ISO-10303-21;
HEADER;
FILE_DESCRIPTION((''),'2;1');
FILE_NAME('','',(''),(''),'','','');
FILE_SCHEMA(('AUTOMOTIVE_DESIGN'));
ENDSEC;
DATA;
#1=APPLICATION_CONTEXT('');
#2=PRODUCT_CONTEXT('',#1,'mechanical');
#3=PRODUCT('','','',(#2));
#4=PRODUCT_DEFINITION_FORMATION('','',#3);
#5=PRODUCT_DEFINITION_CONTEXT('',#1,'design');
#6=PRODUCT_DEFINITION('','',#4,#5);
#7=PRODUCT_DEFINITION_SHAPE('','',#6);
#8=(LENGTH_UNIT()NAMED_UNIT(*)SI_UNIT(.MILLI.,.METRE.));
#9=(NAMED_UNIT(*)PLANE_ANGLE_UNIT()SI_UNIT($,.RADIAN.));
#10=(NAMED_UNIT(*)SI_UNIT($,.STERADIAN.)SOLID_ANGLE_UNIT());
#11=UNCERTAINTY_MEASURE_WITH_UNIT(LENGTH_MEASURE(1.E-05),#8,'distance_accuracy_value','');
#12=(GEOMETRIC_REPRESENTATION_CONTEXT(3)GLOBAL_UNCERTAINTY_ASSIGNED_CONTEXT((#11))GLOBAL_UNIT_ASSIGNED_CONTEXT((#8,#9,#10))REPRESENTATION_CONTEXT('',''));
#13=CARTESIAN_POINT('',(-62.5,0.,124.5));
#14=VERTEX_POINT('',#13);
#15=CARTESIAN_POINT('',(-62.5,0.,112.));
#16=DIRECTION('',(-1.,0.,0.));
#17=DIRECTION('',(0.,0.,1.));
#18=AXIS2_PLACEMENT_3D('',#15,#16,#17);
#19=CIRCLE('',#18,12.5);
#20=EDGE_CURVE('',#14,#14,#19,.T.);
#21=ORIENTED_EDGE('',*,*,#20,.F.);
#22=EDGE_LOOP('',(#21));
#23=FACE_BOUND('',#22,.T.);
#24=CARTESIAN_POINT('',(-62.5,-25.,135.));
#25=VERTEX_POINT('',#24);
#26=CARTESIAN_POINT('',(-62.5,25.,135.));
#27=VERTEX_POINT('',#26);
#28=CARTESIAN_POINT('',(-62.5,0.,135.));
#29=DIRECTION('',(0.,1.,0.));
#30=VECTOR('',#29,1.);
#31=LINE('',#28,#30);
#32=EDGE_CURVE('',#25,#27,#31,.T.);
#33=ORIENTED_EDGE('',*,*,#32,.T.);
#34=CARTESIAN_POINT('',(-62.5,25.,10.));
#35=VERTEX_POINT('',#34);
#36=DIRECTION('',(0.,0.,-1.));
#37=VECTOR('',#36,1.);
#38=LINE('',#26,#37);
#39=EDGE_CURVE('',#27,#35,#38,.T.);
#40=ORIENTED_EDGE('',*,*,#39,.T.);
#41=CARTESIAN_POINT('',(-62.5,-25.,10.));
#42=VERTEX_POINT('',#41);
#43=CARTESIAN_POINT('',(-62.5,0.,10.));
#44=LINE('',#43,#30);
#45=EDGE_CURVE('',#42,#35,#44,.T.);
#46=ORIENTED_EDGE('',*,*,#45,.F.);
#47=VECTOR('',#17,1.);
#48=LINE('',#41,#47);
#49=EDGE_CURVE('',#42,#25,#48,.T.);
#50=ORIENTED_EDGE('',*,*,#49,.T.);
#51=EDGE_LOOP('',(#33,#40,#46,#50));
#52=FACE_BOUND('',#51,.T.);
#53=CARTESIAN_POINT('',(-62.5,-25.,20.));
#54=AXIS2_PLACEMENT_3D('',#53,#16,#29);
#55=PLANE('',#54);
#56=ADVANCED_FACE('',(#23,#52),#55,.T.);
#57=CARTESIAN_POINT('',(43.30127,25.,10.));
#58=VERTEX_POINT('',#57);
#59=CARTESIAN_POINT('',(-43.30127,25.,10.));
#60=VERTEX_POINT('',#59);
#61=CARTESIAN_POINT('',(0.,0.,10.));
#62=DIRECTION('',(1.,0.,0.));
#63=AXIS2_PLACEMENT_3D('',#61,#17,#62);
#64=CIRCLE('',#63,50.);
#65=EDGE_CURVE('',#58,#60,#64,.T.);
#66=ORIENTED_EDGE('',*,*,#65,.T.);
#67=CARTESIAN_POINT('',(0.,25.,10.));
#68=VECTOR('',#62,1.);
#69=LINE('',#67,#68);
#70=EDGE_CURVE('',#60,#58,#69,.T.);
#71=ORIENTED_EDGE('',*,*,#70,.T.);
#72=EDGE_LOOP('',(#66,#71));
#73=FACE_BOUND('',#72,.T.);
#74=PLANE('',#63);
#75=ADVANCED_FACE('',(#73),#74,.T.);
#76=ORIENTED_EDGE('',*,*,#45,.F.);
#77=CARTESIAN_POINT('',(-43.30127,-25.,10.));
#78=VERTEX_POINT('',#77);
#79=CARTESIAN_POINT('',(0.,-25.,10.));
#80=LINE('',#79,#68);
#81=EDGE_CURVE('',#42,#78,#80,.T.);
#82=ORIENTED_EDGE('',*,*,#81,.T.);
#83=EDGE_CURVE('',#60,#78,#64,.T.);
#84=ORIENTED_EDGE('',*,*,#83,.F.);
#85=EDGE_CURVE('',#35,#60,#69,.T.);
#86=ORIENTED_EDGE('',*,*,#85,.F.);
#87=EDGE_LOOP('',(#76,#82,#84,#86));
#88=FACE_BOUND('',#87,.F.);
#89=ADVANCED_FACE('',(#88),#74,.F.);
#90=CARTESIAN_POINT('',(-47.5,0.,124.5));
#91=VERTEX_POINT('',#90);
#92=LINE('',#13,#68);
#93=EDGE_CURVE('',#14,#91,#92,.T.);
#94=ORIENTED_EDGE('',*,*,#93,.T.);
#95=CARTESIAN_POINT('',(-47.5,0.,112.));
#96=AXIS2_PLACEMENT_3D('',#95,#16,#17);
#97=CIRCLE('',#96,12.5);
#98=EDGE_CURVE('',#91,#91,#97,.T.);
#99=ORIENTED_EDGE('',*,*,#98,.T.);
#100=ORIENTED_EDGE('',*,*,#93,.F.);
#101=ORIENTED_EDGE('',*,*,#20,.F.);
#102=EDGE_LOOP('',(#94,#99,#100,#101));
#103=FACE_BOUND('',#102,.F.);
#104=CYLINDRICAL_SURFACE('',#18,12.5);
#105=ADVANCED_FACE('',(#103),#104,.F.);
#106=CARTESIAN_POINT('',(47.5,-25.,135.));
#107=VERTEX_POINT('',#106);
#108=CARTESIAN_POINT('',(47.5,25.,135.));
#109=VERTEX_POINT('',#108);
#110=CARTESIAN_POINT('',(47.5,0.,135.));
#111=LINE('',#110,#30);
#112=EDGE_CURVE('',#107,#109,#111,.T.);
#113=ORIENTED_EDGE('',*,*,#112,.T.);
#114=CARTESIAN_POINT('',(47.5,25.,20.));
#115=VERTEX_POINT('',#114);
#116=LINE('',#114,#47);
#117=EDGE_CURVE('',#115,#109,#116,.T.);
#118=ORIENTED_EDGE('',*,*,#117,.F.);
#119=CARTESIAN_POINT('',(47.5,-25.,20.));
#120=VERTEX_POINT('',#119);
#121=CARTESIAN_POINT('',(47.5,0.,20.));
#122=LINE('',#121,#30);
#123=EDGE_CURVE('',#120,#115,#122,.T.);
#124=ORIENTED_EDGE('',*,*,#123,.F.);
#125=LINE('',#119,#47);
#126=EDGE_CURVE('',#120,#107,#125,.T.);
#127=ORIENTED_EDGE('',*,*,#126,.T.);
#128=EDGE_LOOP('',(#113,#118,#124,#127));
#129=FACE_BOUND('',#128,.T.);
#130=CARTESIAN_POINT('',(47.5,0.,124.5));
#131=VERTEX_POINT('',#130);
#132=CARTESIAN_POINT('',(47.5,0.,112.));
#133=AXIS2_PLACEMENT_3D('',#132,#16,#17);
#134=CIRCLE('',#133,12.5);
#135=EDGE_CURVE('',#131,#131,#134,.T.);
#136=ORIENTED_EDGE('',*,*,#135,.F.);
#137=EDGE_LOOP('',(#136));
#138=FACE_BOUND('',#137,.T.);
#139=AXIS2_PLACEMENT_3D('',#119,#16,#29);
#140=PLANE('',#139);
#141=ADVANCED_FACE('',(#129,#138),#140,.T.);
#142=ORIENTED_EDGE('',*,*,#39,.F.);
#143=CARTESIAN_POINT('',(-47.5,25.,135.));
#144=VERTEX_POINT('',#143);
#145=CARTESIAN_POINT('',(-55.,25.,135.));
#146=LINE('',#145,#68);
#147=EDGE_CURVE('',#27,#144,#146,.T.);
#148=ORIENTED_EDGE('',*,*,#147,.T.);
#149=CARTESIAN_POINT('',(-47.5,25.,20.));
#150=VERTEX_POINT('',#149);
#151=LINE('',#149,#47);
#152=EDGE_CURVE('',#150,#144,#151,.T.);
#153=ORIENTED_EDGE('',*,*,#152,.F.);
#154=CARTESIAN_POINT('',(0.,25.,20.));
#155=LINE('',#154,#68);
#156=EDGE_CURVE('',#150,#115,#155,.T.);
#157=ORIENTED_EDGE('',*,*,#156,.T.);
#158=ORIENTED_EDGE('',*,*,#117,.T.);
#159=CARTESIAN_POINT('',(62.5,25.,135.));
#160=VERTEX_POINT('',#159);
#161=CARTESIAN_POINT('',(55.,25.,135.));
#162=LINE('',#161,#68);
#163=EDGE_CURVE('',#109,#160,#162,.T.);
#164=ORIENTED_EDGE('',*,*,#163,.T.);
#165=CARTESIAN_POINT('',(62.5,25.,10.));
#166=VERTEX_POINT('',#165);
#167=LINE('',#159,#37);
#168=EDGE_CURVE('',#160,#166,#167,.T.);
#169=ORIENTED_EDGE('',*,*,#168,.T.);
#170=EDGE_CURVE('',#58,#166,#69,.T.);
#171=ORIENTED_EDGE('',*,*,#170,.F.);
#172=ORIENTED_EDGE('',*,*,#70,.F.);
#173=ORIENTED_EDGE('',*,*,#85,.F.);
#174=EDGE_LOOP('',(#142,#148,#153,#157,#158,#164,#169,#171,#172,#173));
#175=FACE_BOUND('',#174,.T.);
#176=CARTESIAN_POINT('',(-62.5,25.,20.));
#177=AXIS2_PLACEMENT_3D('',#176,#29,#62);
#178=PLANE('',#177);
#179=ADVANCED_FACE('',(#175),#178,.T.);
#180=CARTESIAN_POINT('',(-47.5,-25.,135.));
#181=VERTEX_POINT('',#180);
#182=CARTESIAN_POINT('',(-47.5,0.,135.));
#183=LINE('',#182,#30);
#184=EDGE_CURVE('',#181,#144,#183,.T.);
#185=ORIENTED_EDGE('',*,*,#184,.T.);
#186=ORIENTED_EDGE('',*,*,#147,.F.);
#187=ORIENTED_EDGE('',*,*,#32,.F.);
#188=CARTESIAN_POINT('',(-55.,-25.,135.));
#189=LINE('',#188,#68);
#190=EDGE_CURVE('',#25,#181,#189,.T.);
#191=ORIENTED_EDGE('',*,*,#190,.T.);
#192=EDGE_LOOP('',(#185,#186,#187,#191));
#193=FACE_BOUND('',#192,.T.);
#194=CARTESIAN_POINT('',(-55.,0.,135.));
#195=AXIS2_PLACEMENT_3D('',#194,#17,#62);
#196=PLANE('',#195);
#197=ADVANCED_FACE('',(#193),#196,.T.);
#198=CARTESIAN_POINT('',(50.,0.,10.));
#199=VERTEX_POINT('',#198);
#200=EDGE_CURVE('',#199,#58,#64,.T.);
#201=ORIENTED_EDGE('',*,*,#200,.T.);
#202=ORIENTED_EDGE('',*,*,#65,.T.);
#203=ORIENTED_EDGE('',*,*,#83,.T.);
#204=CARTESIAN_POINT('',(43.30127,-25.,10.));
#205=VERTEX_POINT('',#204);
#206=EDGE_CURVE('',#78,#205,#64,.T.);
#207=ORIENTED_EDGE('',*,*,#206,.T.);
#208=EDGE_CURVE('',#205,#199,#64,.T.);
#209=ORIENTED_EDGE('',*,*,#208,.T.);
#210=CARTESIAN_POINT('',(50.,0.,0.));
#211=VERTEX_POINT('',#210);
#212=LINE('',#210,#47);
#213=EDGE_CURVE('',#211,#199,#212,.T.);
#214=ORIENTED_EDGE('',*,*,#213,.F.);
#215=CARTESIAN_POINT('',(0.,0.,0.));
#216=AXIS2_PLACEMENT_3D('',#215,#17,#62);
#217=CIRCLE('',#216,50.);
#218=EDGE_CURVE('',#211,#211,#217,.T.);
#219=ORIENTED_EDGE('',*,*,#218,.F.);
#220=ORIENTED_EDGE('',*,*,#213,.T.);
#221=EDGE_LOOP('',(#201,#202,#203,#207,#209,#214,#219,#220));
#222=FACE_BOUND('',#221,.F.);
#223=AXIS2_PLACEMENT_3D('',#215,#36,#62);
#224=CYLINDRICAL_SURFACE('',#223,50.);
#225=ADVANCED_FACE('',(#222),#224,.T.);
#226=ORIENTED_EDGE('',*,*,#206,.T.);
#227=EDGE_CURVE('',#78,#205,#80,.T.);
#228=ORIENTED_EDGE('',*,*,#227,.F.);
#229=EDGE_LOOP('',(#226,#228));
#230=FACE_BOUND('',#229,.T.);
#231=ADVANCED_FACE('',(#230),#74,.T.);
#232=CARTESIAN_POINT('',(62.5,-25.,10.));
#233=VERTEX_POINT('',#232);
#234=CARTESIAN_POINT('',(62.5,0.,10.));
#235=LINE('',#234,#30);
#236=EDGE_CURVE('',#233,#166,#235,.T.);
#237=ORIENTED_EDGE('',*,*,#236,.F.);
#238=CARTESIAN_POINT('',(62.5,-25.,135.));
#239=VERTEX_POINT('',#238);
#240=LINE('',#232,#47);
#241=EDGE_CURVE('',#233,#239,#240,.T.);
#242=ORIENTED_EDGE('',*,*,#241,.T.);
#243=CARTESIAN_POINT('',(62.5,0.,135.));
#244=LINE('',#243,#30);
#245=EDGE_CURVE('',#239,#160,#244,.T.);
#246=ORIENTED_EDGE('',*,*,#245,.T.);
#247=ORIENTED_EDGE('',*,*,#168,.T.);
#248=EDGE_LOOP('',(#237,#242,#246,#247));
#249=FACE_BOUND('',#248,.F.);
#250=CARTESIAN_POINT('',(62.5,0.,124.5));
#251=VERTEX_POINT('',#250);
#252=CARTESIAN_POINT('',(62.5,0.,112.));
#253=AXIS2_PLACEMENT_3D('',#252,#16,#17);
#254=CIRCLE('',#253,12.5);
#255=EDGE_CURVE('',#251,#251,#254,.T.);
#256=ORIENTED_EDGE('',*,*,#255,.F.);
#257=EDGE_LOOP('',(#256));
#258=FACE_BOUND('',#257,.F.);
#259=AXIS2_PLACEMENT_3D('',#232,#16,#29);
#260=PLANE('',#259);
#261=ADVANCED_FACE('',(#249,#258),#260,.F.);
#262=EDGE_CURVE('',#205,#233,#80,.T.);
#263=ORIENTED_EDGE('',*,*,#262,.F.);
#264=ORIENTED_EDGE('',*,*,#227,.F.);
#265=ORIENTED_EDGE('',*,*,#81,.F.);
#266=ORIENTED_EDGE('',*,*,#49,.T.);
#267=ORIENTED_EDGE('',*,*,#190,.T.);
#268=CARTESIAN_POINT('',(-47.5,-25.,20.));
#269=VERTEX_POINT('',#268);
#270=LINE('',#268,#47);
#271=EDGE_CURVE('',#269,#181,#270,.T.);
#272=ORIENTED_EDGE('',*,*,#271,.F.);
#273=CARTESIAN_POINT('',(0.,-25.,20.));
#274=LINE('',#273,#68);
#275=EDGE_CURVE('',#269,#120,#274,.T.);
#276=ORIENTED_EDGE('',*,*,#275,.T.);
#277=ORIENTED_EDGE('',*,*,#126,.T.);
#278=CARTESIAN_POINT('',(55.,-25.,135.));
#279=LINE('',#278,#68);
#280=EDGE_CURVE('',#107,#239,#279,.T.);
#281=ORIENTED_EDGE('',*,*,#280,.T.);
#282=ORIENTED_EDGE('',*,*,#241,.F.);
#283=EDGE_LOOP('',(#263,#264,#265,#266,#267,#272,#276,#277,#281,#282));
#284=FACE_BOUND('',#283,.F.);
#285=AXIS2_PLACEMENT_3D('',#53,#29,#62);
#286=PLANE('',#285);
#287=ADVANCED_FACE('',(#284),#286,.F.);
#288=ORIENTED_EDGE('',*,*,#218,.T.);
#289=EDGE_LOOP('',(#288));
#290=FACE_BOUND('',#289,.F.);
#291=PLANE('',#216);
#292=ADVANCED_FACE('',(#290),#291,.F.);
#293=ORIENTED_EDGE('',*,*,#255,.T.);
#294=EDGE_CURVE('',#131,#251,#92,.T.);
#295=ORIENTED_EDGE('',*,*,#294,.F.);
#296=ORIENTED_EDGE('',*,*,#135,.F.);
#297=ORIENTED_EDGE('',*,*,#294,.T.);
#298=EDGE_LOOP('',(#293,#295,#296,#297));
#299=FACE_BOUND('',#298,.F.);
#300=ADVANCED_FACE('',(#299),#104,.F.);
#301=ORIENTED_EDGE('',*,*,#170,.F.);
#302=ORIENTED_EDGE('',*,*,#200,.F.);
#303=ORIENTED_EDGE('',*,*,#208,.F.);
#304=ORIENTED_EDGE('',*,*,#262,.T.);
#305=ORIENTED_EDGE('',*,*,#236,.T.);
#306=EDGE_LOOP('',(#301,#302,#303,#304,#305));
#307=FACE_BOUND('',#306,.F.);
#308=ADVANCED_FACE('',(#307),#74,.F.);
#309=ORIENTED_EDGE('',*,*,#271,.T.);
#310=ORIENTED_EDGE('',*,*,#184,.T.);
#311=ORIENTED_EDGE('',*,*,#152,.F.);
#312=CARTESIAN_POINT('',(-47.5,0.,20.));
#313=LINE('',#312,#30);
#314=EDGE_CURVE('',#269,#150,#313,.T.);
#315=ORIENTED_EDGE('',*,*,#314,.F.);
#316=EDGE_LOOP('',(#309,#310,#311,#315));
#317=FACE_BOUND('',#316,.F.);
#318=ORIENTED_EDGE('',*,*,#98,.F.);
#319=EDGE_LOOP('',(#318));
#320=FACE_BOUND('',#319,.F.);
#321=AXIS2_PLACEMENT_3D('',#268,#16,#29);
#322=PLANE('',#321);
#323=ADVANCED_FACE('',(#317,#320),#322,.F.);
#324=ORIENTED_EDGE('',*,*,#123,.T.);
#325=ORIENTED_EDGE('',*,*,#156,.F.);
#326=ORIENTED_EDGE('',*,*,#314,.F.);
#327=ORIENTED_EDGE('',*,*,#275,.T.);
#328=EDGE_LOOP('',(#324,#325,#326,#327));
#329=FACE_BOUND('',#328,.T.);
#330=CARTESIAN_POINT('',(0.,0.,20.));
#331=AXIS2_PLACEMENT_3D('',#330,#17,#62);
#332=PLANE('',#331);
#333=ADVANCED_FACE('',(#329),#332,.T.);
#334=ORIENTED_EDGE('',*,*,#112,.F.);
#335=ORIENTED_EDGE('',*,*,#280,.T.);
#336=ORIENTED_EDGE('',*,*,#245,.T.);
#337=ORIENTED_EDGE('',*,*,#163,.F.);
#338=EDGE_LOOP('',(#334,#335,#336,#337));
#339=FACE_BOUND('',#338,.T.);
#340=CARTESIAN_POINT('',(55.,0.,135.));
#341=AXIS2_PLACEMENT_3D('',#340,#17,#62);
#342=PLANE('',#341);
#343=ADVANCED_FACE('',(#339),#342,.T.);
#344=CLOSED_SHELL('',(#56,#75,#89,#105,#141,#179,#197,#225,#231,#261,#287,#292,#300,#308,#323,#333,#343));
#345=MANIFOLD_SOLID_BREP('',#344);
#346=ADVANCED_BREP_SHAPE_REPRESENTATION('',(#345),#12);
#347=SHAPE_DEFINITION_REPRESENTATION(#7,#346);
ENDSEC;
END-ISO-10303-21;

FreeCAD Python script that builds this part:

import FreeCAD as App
import Part
import Sketcher

V = App.Vector
Q = App.Units.Quantity

doc = App.newDocument("Part")
body = doc.addObject("PartDesign::Body", "Body")

# Sketch on XY plane
sketch1 = doc.addObject("Sketcher::SketchObject", "Sketch")
body.addObject(sketch1)
sketch1.AttachmentSupport = (doc.XY_Plane, [""])
sketch1.MapMode = "FlatFace"
sketch1.addGeometry(Part.Circle(V(0, 0, 0), V(0, 0, 1), 50), False)
sketch1.addConstraint([
    Sketcher.Constraint("Coincident", 0, 3, -1, 1),
    Sketcher.Constraint("Diameter", 0, Q("100 mm")),
])
pad1 = doc.addObject("PartDesign::Pad", "Pad")
body.addObject(pad1)
pad1.Profile = sketch1
pad1.Length = 10

# Sketch on XY plane
sketch2 = doc.addObject("Sketcher::SketchObject", "Sketch001")
body.addObject(sketch2)
sketch2.AttachmentSupport = (doc.XY_Plane, [""])
sketch2.MapMode = "FlatFace"
sketch2.AttachmentOffset = App.Placement(V(0, 0, 10), App.Rotation())
sketch2.addGeometry([
    Part.LineSegment(V(-62, 25, 0), V(-62, -25, 0)),
    Part.LineSegment(V(-62, -25, 0), V(62, -25, 0)),
    Part.LineSegment(V(62, -25, 0), V(62, 25, 0)),
    Part.LineSegment(V(62, 25, 0), V(-62, 25, 0)),
], False)
sketch2.addConstraint([
    Sketcher.Constraint("Coincident", 0, 2, 1, 1),
    Sketcher.Constraint("Coincident", 1, 2, 2, 1),
    Sketcher.Constraint("Coincident", 2, 2, 3, 1),
    Sketcher.Constraint("Coincident", 3, 2, 0, 1),
    Sketcher.Constraint("Vertical", 0),
    Sketcher.Constraint("Horizontal", 1),
    Sketcher.Constraint("Vertical", 2),
    Sketcher.Constraint("Horizontal", 3),
    Sketcher.Constraint("Symmetric", 0, 2, 2, 2, -1, 1),
    Sketcher.Constraint("DistanceX", 1, 1, 1, 2, Q("125 mm")),
    Sketcher.Constraint("DistanceY", 0, 2, 0, 1, Q("50 mm")),
])
pad2 = doc.addObject("PartDesign::Pad", "Pad001")
body.addObject(pad2)
pad2.Profile = sketch2
pad2.Length = 10

# Sketch on XY plane
sketch3 = doc.addObject("Sketcher::SketchObject", "Sketch002")
body.addObject(sketch3)
sketch3.AttachmentSupport = (doc.XY_Plane, [""])
sketch3.MapMode = "FlatFace"
sketch3.AttachmentOffset = App.Placement(V(0, 0, 20), App.Rotation())
sketch3.addGeometry([
    Part.LineSegment(V(-62, 25, 0), V(-62, -25, 0)),  # 0
    Part.LineSegment(V(-62, -25, 0), V(-48, -25, 0)),  # 1
    Part.LineSegment(V(-48, -25, 0), V(-48, 25, 0)),  # 2
    Part.LineSegment(V(-48, 25, 0), V(-62, 25, 0)),  # 3
    Part.LineSegment(V(48, 25, 0), V(48, -25, 0)),  # 4
    Part.LineSegment(V(48, -25, 0), V(62, -25, 0)),  # 5
    Part.LineSegment(V(62, -25, 0), V(62, 25, 0)),  # 6
    Part.LineSegment(V(62, 25, 0), V(48, 25, 0)),  # 7
], False)
sketch3.addConstraint([
    Sketcher.Constraint("Coincident", 0, 2, 1, 1),
    Sketcher.Constraint("Coincident", 1, 2, 2, 1),
    Sketcher.Constraint("Coincident", 2, 2, 3, 1),
    Sketcher.Constraint("Coincident", 3, 2, 0, 1),
    Sketcher.Constraint("Coincident", 4, 2, 5, 1),
    Sketcher.Constraint("Coincident", 5, 2, 6, 1),
    Sketcher.Constraint("Coincident", 6, 2, 7, 1),
    Sketcher.Constraint("Coincident", 7, 2, 4, 1),
    Sketcher.Constraint("Vertical", 0),
    Sketcher.Constraint("Horizontal", 1),
    Sketcher.Constraint("Vertical", 2),
    Sketcher.Constraint("Horizontal", 3),
    Sketcher.Constraint("Vertical", 4),
    Sketcher.Constraint("Horizontal", 5),
    Sketcher.Constraint("Vertical", 6),
    Sketcher.Constraint("Horizontal", 7),
    Sketcher.Constraint("Symmetric", 2, 2, 4, 2, -1, 1),
    Sketcher.Constraint("Symmetric", 0, 2, 6, 2, -1, 1),
    Sketcher.Constraint("Horizontal", 1, 2, 4, 2),
    Sketcher.Constraint("DistanceX", 1, 1, 1, 2, Q("15 mm")),
    Sketcher.Constraint("DistanceY", 0, 2, 0, 1, Q("50 mm")),
    Sketcher.Constraint("DistanceX", 1, 2, 4, 2, Q("95 mm")),
])
pad3 = doc.addObject("PartDesign::Pad", "Pad002")
body.addObject(pad3)
pad3.Profile = sketch3
pad3.Length = 115

# Sketch on YZ plane
sketch4 = doc.addObject("Sketcher::SketchObject", "Sketch003")
body.addObject(sketch4)
sketch4.AttachmentSupport = (doc.YZ_Plane, [""])
sketch4.MapMode = "FlatFace"
sketch4.AttachmentOffset = App.Placement(V(0, 0, -62.5), App.Rotation())
sketch4.addGeometry(Part.Circle(V(0, 112, 0), V(0, 0, 1), 12), False)
sketch4.addConstraint([
    Sketcher.Constraint("PointOnObject", 0, 3, -2),
    Sketcher.Constraint("Diameter", 0, Q("25 mm")),
    Sketcher.Constraint("DistanceY", -1, 1, 0, 3, Q("112 mm")),
])
pocket1 = doc.addObject("PartDesign::Pocket", "Pocket")
body.addObject(pocket1)
pocket1.Profile = sketch4
pocket1.Type = "ThroughAll"
pocket1.Reversed = True

doc.recompute()
